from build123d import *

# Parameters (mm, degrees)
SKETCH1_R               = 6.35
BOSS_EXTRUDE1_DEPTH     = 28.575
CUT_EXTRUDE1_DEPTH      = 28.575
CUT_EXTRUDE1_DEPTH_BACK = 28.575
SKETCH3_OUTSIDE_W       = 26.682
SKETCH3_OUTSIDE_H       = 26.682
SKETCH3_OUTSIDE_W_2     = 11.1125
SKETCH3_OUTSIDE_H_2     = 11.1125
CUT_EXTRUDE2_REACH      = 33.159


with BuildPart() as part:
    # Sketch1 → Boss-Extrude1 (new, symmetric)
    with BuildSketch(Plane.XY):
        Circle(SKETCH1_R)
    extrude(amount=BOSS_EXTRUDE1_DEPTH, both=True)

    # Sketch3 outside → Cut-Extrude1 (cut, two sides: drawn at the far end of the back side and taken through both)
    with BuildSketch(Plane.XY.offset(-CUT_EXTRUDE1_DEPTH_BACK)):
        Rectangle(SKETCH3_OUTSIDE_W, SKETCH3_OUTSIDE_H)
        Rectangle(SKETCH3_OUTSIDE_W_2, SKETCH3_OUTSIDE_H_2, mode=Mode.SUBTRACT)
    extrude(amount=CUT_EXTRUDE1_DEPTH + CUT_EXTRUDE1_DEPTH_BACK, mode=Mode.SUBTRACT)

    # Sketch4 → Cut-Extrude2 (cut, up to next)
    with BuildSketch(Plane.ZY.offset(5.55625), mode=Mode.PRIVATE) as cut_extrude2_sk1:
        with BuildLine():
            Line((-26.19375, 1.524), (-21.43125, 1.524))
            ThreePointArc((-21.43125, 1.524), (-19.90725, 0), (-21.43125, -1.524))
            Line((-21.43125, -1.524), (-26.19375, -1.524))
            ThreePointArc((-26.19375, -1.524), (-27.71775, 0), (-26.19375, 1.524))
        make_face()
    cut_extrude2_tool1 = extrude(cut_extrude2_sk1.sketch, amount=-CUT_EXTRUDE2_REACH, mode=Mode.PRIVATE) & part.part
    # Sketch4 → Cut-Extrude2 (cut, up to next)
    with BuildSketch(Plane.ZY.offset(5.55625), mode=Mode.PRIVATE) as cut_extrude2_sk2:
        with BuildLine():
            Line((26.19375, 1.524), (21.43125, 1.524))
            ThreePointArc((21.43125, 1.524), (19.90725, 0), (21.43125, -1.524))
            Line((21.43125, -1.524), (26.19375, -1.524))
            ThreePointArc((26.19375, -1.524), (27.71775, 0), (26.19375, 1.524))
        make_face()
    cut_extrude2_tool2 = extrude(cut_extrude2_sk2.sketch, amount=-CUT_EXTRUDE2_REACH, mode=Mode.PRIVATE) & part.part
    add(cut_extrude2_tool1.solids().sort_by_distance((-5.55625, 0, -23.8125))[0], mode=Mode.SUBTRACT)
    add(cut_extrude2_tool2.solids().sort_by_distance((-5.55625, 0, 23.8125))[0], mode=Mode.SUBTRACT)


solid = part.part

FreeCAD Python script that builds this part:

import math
import FreeCAD as App
import Part
import Sketcher
from FreeCAD import Vector
Q = App.Units.Quantity

doc = App.newDocument("Part")
body = doc.addObject("PartDesign::Body", "Body")

# Sketch on XY plane
sketch1 = body.newObject("Sketcher::SketchObject", "Sketch")
sketch1.AttachmentSupport = (doc.getObject("XY_Plane"), [""])
sketch1.MapMode = "FlatFace"
sketch1.addGeometry(Part.Circle(Vector(0, 0, 0), Vector(0, 0, 1), 6), False)
sketch1.addConstraint([
    Sketcher.Constraint("Coincident", 0, 3, -1, 1),
    Sketcher.Constraint("Diameter", 0, Q("0.5 in")),
])
pad1 = body.newObject("PartDesign::Pad", "Pad")
pad1.Profile = sketch1
pad1.Length = Q("2.25 in")
pad1.Midplane = True

# Sketch on XY plane
sketch2 = body.newObject("Sketcher::SketchObject", "Sketch001")
sketch2.AttachmentSupport = (doc.getObject("XY_Plane"), [""])
sketch2.MapMode = "FlatFace"
sketch2.addGeometry([
    Part.LineSegment(Vector(-13, 13, 0), Vector(-13, -13, 0)),  # 0
    Part.LineSegment(Vector(-13, -13, 0), Vector(13, -13, 0)),  # 1
    Part.LineSegment(Vector(13, -13, 0), Vector(13, 13, 0)),  # 2
    Part.LineSegment(Vector(13, 13, 0), Vector(-13, 13, 0)),  # 3
    Part.LineSegment(Vector(6, -6, 0), Vector(-6, -6, 0)),  # 4
    Part.LineSegment(Vector(-6, -6, 0), Vector(-6, 6, 0)),  # 5
    Part.LineSegment(Vector(-6, 6, 0), Vector(6, 6, 0)),  # 6
    Part.LineSegment(Vector(6, 6, 0), Vector(6, -6, 0)),  # 7
], False)
sketch2.addConstraint([
    Sketcher.Constraint("Coincident", 0, 2, 1, 1),
    Sketcher.Constraint("Coincident", 1, 2, 2, 1),
    Sketcher.Constraint("Coincident", 2, 2, 3, 1),
    Sketcher.Constraint("Coincident", 3, 2, 0, 1),
    Sketcher.Constraint("Coincident", 4, 2, 5, 1),
    Sketcher.Constraint("Coincident", 5, 2, 6, 1),
    Sketcher.Constraint("Coincident", 6, 2, 7, 1),
    Sketcher.Constraint("Coincident", 7, 2, 4, 1),
    Sketcher.Constraint("Vertical", 0),
    Sketcher.Constraint("Horizontal", 1),
    Sketcher.Constraint("Vertical", 2),
    Sketcher.Constraint("Horizontal", 3),
    Sketcher.Constraint("Horizontal", 4),
    Sketcher.Constraint("Vertical", 5),
    Sketcher.Constraint("Horizontal", 6),
    Sketcher.Constraint("Vertical", 7),
    Sketcher.Constraint("Symmetric", 0, 2, 2, 2, -1, 1),
    Sketcher.Constraint("Symmetric", 4, 2, 6, 2, -1, 1),
    Sketcher.Constraint("Equal", 3, 0),
    Sketcher.Constraint("Equal", 6, 5),
    Sketcher.Constraint("DistanceX", 4, 2, 4, 1, Q("0.4375 in")),
    Sketcher.Constraint("DistanceX", 1, 1, 1, 2, 26.682),
])
pocket1 = body.newObject("PartDesign::Pocket", "Pocket")
pocket1.Profile = sketch2
pocket1.Type = "ThroughAll"
pocket1.Midplane = True

# Sketch on YZ plane
sketch3 = body.newObject("Sketcher::SketchObject", "Sketch002")
sketch3.AttachmentSupport = (doc.getObject("YZ_Plane"), [""])
sketch3.MapMode = "FlatFace"
sketch3.AttachmentOffset = App.Placement(Vector(0, 0, -0.21875 * 25.4), App.Rotation())
sketch3.addGeometry([
    Part.LineSegment(Vector(1.5, -21.4, 0), Vector(1.5, -26.2, 0)),
    Part.ArcOfCircle(Part.Circle(Vector(0, -26.2, 0), Vector(0, 0, 1), 1.5), math.radians(180), math.radians(360)),
    Part.LineSegment(Vector(-1.5, -26.2, 0), Vector(-1.5, -21.4, 0)),
    Part.ArcOfCircle(Part.Circle(Vector(0, -21.4, 0), Vector(0, 0, 1), 1.5), math.radians(0), math.radians(180)),
], False)
sketch3.addConstraint([
    Sketcher.Constraint("Tangent", 0, 2, 1, 2),
    Sketcher.Constraint("Tangent", 1, 1, 2, 1),
    Sketcher.Constraint("Tangent", 2, 2, 3, 2),
    Sketcher.Constraint("Tangent", 3, 1, 0, 1),
    Sketcher.Constraint("Vertical", 0),
    Sketcher.Constraint("Vertical", 2),
    Sketcher.Constraint("PointOnObject", 1, 3, -2),
    Sketcher.Constraint("Radius", 1, Q("0.06 in")),
    Sketcher.Constraint("DistanceY", 0, 2, 0, 1, Q("0.1875 in")),
    Sketcher.Constraint("DistanceY", 1, 3, -1, 1, Q("1.03125 in")),
])
pocket2 = body.newObject("PartDesign::Pocket", "Pocket001")
pocket2.Profile = sketch3
pocket2.Type = "UpToFirst"
pocket2.Reversed = True

# Sketch on YZ plane
sketch4 = body.newObject("Sketcher::SketchObject", "Sketch003")
sketch4.AttachmentSupport = (doc.getObject("YZ_Plane"), [""])
sketch4.MapMode = "FlatFace"
sketch4.AttachmentOffset = App.Placement(Vector(0, 0, -0.21875 * 25.4), App.Rotation())
sketch4.addGeometry([
    Part.LineSegment(Vector(1.5, 26.2, 0), Vector(1.5, 21.4, 0)),
    Part.ArcOfCircle(Part.Circle(Vector(0, 21.4, 0), Vector(0, 0, 1), 1.5), math.radians(180), math.radians(360)),
    Part.LineSegment(Vector(-1.5, 21.4, 0), Vector(-1.5, 26.2, 0)),
    Part.ArcOfCircle(Part.Circle(Vector(0, 26.2, 0), Vector(0, 0, 1), 1.5), math.radians(0), math.radians(180)),
], False)
sketch4.addConstraint([
    Sketcher.Constraint("Tangent", 0, 2, 1, 2),
    Sketcher.Constraint("Tangent", 1, 1, 2, 1),
    Sketcher.Constraint("Tangent", 2, 2, 3, 2),
    Sketcher.Constraint("Tangent", 3, 1, 0, 1),
    Sketcher.Constraint("Vertical", 0),
    Sketcher.Constraint("Vertical", 2),
    Sketcher.Constraint("PointOnObject", 1, 3, -2),
    Sketcher.Constraint("Radius", 1, Q("0.06 in")),
    Sketcher.Constraint("DistanceY", 0, 2, 0, 1, Q("0.1875 in")),
    Sketcher.Constraint("DistanceY", -1, 1, 1, 3, Q("0.84375 in")),
])
pocket3 = body.newObject("PartDesign::Pocket", "Pocket002")
pocket3.Profile = sketch4
pocket3.Type = "UpToFirst"
pocket3.Reversed = True

doc.recompute()
